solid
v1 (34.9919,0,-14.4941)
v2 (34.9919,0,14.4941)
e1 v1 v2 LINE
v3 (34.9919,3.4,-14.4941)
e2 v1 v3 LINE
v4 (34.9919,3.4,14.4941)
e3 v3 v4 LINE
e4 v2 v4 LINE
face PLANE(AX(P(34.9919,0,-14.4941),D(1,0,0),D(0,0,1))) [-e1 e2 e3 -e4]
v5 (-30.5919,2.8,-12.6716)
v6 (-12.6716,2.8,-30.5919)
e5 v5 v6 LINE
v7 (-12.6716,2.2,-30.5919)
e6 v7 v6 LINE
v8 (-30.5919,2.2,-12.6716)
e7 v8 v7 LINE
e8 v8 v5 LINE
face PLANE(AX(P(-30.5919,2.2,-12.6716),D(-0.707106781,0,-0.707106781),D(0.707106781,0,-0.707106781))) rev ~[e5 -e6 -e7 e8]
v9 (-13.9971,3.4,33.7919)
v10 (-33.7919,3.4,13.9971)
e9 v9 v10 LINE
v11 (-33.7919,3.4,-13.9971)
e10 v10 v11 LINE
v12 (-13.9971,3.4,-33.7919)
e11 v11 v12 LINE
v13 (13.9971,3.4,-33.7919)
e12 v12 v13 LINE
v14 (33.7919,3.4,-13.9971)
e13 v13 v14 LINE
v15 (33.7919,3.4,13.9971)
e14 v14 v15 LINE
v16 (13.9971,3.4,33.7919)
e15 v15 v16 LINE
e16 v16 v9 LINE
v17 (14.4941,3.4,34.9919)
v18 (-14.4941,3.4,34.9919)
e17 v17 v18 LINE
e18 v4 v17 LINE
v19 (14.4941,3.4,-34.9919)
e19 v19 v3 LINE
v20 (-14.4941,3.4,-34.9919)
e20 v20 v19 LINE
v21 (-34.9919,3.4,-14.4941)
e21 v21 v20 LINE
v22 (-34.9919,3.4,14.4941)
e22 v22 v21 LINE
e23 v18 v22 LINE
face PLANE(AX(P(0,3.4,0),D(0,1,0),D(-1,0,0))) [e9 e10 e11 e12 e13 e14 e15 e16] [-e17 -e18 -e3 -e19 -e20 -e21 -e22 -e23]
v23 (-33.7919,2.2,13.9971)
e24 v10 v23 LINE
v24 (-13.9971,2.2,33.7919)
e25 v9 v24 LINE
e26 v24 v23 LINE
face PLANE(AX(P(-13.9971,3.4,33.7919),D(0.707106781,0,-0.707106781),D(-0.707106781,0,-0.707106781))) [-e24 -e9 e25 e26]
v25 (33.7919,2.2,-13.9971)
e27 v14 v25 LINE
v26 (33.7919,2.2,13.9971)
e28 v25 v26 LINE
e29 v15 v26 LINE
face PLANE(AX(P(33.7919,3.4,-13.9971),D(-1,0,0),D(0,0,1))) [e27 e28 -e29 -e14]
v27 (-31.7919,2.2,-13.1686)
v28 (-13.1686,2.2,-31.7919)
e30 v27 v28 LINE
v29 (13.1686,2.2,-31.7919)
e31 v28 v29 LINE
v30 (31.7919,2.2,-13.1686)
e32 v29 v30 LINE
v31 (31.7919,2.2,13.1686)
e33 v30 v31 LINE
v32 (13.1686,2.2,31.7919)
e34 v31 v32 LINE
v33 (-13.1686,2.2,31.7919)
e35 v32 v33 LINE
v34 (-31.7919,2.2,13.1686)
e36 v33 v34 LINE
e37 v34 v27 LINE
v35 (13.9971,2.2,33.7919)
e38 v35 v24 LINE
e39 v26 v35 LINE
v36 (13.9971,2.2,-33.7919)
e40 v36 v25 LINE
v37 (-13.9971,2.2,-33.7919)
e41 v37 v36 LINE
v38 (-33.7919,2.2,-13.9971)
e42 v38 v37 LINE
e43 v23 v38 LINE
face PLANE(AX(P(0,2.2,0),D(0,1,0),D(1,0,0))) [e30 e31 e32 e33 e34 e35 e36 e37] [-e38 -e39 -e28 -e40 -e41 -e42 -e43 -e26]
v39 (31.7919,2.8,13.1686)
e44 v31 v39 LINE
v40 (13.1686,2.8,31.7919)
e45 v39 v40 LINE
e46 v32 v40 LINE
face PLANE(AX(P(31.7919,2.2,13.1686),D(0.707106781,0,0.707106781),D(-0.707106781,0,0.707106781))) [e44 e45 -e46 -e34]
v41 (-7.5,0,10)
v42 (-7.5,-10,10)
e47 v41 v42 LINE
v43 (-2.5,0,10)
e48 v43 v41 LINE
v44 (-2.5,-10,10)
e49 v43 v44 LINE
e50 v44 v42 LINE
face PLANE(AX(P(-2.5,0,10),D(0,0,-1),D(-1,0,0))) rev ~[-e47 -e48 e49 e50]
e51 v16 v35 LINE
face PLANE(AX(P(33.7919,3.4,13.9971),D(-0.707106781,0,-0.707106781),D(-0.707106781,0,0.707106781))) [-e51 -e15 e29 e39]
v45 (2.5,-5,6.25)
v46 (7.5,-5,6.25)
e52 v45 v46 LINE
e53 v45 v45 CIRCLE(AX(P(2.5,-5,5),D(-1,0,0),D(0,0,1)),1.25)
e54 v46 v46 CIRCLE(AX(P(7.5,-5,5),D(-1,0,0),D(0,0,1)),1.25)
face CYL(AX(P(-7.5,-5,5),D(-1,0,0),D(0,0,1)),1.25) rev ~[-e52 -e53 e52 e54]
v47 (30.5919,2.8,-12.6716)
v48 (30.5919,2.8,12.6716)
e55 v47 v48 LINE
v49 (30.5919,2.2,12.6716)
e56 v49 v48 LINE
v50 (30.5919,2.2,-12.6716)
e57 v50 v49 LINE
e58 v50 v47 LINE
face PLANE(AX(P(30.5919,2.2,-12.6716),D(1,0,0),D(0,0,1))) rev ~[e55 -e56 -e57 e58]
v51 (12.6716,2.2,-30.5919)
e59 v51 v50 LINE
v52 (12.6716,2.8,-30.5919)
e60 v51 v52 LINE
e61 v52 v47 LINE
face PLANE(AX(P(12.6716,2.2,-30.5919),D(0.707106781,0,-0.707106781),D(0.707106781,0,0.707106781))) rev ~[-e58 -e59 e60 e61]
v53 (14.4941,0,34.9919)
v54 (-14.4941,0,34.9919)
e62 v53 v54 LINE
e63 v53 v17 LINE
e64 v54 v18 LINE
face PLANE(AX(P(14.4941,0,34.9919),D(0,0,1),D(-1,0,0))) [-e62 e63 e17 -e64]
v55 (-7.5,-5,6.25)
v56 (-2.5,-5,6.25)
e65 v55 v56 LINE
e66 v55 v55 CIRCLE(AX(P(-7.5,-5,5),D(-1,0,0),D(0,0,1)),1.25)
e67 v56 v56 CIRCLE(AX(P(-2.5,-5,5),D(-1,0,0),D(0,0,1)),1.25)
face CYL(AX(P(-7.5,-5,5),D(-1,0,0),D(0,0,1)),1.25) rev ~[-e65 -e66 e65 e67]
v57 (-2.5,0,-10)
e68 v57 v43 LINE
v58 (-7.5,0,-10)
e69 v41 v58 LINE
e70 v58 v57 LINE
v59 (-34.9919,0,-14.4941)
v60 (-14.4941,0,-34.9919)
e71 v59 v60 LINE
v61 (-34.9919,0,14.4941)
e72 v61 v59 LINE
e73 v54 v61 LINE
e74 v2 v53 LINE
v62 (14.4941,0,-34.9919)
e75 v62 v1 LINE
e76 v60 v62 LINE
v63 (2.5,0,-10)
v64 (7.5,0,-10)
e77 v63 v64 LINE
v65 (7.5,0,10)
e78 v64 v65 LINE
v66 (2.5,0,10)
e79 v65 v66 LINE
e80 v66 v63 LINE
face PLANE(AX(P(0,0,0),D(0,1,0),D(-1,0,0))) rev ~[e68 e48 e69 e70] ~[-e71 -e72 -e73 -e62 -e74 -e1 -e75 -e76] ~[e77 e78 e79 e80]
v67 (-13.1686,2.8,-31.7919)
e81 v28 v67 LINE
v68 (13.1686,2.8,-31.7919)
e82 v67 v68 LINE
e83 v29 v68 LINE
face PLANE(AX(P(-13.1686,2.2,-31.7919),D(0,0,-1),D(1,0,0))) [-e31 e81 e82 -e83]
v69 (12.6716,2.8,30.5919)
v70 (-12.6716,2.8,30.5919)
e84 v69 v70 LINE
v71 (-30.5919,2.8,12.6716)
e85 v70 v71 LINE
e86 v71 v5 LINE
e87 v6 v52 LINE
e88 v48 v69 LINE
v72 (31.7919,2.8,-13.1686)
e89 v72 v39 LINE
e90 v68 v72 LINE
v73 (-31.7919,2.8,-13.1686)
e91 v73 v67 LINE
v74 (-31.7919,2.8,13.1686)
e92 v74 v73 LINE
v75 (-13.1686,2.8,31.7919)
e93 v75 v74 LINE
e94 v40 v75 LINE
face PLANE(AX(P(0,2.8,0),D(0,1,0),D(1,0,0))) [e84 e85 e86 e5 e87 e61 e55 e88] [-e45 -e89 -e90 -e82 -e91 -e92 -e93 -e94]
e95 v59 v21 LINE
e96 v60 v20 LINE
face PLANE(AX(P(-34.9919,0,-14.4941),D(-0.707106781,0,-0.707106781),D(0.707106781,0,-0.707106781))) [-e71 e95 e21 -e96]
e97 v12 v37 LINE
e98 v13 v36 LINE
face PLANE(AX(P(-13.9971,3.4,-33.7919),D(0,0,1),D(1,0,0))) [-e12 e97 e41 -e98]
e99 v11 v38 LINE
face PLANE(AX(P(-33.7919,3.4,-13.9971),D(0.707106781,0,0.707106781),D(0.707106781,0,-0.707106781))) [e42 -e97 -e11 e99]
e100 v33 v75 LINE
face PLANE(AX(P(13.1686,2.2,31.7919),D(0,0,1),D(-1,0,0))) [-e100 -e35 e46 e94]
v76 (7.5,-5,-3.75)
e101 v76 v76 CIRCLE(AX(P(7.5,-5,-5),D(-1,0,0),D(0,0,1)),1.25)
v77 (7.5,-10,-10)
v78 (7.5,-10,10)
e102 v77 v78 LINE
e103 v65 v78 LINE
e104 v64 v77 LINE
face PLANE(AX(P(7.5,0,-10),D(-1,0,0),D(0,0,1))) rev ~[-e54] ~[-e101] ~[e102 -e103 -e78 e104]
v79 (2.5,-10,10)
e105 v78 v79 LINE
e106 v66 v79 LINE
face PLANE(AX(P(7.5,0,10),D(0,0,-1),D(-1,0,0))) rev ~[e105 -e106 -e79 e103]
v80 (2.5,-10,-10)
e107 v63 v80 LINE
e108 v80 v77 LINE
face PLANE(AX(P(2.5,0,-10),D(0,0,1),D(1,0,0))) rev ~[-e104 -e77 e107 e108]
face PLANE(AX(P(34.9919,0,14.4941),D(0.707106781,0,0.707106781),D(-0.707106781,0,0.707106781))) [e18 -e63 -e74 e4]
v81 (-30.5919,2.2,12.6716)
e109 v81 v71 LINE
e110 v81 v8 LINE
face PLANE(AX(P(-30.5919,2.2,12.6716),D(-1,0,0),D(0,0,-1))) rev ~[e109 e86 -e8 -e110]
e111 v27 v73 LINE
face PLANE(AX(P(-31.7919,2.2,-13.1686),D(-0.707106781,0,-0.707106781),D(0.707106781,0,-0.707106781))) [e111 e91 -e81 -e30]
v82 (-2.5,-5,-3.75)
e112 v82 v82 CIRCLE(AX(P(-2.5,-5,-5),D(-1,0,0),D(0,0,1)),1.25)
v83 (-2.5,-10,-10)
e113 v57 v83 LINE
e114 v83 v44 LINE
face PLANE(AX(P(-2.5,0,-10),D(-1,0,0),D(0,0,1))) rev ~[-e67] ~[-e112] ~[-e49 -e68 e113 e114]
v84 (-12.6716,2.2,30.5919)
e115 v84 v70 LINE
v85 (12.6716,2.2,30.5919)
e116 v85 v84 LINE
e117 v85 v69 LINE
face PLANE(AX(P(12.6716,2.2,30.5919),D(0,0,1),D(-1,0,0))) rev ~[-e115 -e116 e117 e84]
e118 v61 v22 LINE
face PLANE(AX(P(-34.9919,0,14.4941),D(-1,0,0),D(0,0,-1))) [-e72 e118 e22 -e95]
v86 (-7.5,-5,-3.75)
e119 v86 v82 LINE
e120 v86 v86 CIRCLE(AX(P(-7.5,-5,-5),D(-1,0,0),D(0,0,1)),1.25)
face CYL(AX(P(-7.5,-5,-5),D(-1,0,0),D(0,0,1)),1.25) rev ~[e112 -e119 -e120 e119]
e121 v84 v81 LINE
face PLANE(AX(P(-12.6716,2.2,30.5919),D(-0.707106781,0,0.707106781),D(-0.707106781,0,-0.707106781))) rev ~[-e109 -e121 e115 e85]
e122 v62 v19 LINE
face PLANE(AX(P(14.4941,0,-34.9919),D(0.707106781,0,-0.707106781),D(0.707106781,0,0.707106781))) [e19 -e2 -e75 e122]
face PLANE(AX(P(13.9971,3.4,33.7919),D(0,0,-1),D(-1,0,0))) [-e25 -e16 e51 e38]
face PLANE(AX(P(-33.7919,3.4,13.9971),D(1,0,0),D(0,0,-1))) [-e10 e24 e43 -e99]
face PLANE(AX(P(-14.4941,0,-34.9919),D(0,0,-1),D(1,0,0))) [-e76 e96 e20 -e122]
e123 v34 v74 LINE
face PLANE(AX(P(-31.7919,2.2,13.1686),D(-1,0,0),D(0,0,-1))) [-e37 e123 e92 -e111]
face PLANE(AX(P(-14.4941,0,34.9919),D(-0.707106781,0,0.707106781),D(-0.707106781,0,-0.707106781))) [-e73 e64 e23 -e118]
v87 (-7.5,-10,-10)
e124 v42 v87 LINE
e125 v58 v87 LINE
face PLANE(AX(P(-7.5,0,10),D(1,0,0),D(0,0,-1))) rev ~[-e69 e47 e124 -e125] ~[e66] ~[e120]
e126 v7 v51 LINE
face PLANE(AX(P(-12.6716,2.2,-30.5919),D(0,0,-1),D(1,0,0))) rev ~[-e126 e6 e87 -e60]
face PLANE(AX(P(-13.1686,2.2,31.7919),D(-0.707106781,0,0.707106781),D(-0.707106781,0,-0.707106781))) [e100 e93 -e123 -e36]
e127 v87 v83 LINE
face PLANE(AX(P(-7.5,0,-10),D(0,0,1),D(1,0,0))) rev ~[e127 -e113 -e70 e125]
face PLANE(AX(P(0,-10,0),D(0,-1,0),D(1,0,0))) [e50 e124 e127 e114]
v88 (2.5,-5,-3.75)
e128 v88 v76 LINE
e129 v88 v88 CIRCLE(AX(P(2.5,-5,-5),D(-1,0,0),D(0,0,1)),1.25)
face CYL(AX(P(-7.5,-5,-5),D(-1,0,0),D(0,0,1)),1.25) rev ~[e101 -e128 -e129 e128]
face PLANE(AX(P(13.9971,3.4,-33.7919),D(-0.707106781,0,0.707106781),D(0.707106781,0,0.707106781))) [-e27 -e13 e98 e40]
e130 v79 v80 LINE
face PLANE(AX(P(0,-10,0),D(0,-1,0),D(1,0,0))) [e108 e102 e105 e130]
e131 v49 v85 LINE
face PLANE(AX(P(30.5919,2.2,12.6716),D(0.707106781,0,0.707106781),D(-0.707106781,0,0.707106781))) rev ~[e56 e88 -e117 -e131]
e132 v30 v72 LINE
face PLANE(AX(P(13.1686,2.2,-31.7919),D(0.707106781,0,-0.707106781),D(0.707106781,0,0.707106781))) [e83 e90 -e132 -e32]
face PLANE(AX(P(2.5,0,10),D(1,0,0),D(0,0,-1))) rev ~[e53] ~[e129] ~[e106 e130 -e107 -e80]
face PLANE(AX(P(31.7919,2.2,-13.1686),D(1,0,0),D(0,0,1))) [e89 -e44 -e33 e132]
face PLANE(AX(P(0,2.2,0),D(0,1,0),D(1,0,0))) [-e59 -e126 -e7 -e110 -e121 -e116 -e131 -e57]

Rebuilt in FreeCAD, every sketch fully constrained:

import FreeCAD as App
import Part
import Sketcher
Q = App.Units.Quantity


def add_polygon(sketch, points):
    """Adds a closed chain of lines whose ends are joined by coincident constraints."""
    first, n = sketch.GeometryCount, len(points)
    for a, b in zip(points, points[1:] + points[:1]):
        sketch.addGeometry(Part.LineSegment(App.Vector(*a, 0), App.Vector(*b, 0)), False)
    for i in range(n):
        sketch.addConstraint(Sketcher.Constraint("Coincident", first + i, 2, first + (i + 1) % n, 1))

doc = App.newDocument("Part")
body = doc.addObject("PartDesign::Body", "Body")

sketch1 = body.newObject("Sketcher::SketchObject", "Sketch")
sketch1.AttachmentSupport = (doc.getObject("XZ_Plane"), [""])
sketch1.MapMode = "FlatFace"
add_polygon(sketch1, [(-14.4941, -34.9919), (-34.9919, -14.4941), (-34.9919, 14.4941), (-14.4941, 34.9919), (14.4941, 34.9919), (34.9919, 14.4941), (34.9919, -14.4941), (14.4941, -34.9919)])
sketch1.addConstraint(Sketcher.Constraint("Vertical", 1))
sketch1.addConstraint(Sketcher.Constraint("Horizontal", 3))
sketch1.addConstraint(Sketcher.Constraint("Vertical", 5))
sketch1.addConstraint(Sketcher.Constraint("Horizontal", 7))
sketch1.addConstraint(Sketcher.Constraint("Symmetric", 0, 2, 4, 2, -1, 1))
sketch1.addConstraint(Sketcher.Constraint("Symmetric", 2, 2, 6, 2, -1, 1))
sketch1.addConstraint(Sketcher.Constraint("Perpendicular", 0, 2))
sketch1.addConstraint(Sketcher.Constraint("Perpendicular", 2, 4))
sketch1.addConstraint(Sketcher.Constraint("Perpendicular", 4, 6))
sketch1.addConstraint(Sketcher.Constraint("Horizontal", 1, 2, 4, 2))
sketch1.addConstraint(Sketcher.Constraint("Vertical", 3, 2, 6, 2))
sketch1.addConstraint(Sketcher.Constraint("Equal", 7, 1))
sketch1.addConstraint(Sketcher.Constraint("DistanceX", 3, 1, 3, 2, Q("28.9882 mm")))
sketch1.addConstraint(Sketcher.Constraint("DistanceX", 0, 2, -1, 1, Q("34.992 mm")))
pad1 = body.newObject("PartDesign::Pad", "Pad")
pad1.Profile = sketch1
pad1.Length = 3.4
pad1.Reversed = True

sketch2 = body.newObject("Sketcher::SketchObject", "Sketch001")
sketch2.AttachmentSupport = (doc.getObject("XZ_Plane"), [""])
sketch2.MapMode = "FlatFace"
sketch2.AttachmentOffset = App.Placement(App.Vector(0, 0, -3.4), App.Rotation())
add_polygon(sketch2, [(13.9971, -33.7919), (-13.9971, -33.7919), (-33.7919, -13.9971), (-33.7919, 13.9971), (-13.9971, 33.7919), (13.9971, 33.7919), (33.7919, 13.9971), (33.7919, -13.9971)])
sketch2.addConstraint(Sketcher.Constraint("Horizontal", 0))
sketch2.addConstraint(Sketcher.Constraint("Vertical", 2))
sketch2.addConstraint(Sketcher.Constraint("Horizontal", 4))
sketch2.addConstraint(Sketcher.Constraint("Vertical", 6))
sketch2.addConstraint(Sketcher.Constraint("Symmetric", 0, 2, 4, 2, -1, 1))
sketch2.addConstraint(Sketcher.Constraint("Symmetric", 1, 2, 5, 2, -1, 1))
sketch2.addConstraint(Sketcher.Constraint("Perpendicular", 1, 3))
sketch2.addConstraint(Sketcher.Constraint("Perpendicular", 5, 7))
sketch2.addConstraint(Sketcher.Constraint("Horizontal", 2, 2, 5, 2))
sketch2.addConstraint(Sketcher.Constraint("Horizontal", 1, 2, 6, 2))
sketch2.addConstraint(Sketcher.Constraint("Vertical", 0, 2, 3, 2))
sketch2.addConstraint(Sketcher.Constraint("Equal", 4, 2))
sketch2.addConstraint(Sketcher.Constraint("Distance", 1, Q("27.994 mm")))
sketch2.addConstraint(Sketcher.Constraint("DistanceX", 0, 2, 0, 1, Q("27.9942 mm")))
pocket1 = body.newObject("PartDesign::Pocket", "Pocket")
pocket1.Profile = sketch2
pocket1.Length = 1.2
pocket1.Reversed = True

sketch3 = body.newObject("Sketcher::SketchObject", "Sketch002")
sketch3.AttachmentSupport = (doc.getObject("XZ_Plane"), [""])
sketch3.MapMode = "FlatFace"
add_polygon(sketch3, [(7.5, -10), (7.5, 10), (2.5, 10), (2.5, -10)])
add_polygon(sketch3, [(-2.5, -10), (-2.5, 10), (-7.5, 10), (-7.5, -10)])
sketch3.addConstraint(Sketcher.Constraint("Vertical", 0))
sketch3.addConstraint(Sketcher.Constraint("Horizontal", 1))
sketch3.addConstraint(Sketcher.Constraint("Vertical", 2))
sketch3.addConstraint(Sketcher.Constraint("Horizontal", 3))
sketch3.addConstraint(Sketcher.Constraint("Vertical", 4))
sketch3.addConstraint(Sketcher.Constraint("Horizontal", 5))
sketch3.addConstraint(Sketcher.Constraint("Vertical", 6))
sketch3.addConstraint(Sketcher.Constraint("Horizontal", 7))
sketch3.addConstraint(Sketcher.Constraint("Symmetric", 2, 2, 4, 2, -1, 1))
sketch3.addConstraint(Sketcher.Constraint("Symmetric", 0, 2, 6, 2, -1, 1))
sketch3.addConstraint(Sketcher.Constraint("Horizontal", 1, 2, 4, 2))
sketch3.addConstraint(Sketcher.Constraint("DistanceX", 1, 2, 1, 1, Q("5 mm")))
sketch3.addConstraint(Sketcher.Constraint("DistanceY", 0, 1, 0, 2, Q("20 mm")))
sketch3.addConstraint(Sketcher.Constraint("DistanceX", 4, 2, 1, 2, Q("5 mm")))
pad2 = body.newObject("PartDesign::Pad", "Pad001")
pad2.Profile = sketch3
pad2.Length = 10

sketch4 = body.newObject("Sketcher::SketchObject", "Sketch003")
sketch4.AttachmentSupport = (doc.getObject("YZ_Plane"), [""])
sketch4.MapMode = "FlatFace"
sketch4.AttachmentOffset = App.Placement(App.Vector(0, 0, -7.5), App.Rotation())
sketch4.addGeometry(Part.Circle(App.Vector(-5, 5, 0), App.Vector(0, 0, 1), 1.25), False)
sketch4.addGeometry(Part.Circle(App.Vector(-5, -5, 0), App.Vector(0, 0, 1), 1.25), False)
sketch4.addConstraint(Sketcher.Constraint("Equal", 0, 1))
sketch4.addConstraint(Sketcher.Constraint("Symmetric", 0, 3, 1, 3, -1))
sketch4.addConstraint(Sketcher.Constraint("Diameter", 0, Q("2.5 mm")))
sketch4.addConstraint(Sketcher.Constraint("DistanceX", 0, 3, -1, 1, Q("5 mm")))
sketch4.addConstraint(Sketcher.Constraint("DistanceY", -1, 1, 0, 3, Q("5 mm")))
pocket2 = body.newObject("PartDesign::Pocket", "Pocket001")
pocket2.Profile = sketch4
pocket2.Length = 20
pocket2.Reversed = True

sketch5 = body.newObject("Sketcher::SketchObject", "Sketch004")
sketch5.AttachmentSupport = (doc.getObject("XZ_Plane"), [""])
sketch5.MapMode = "FlatFace"
sketch5.AttachmentOffset = App.Placement(App.Vector(0, 0, -2.2), App.Rotation())
add_polygon(sketch5, [(13.1686, -31.7919), (-13.1686, -31.7919), (-31.7919, -13.1686), (-31.7919, 13.1686), (-13.1686, 31.7919), (13.1686, 31.7919), (31.7919, 13.1686), (31.7919, -13.1686)])
add_polygon(sketch5, [(-30.5919, -12.6716), (-12.6716, -30.5919), (12.6716, -30.5919), (30.5919, -12.6716), (30.5919, 12.6716), (12.6716, 30.5919), (-12.6716, 30.5919), (-30.5919, 12.6716)])
sketch5.addConstraint(Sketcher.Constraint("Horizontal", 0))
sketch5.addConstraint(Sketcher.Constraint("Vertical", 2))
sketch5.addConstraint(Sketcher.Constraint("Horizontal", 4))
sketch5.addConstraint(Sketcher.Constraint("Vertical", 6))
sketch5.addConstraint(Sketcher.Constraint("Horizontal", 9))
sketch5.addConstraint(Sketcher.Constraint("Vertical", 11))
sketch5.addConstraint(Sketcher.Constraint("Horizontal", 13))
sketch5.addConstraint(Sketcher.Constraint("Vertical", 15))
sketch5.addConstraint(Sketcher.Constraint("Symmetric", 0, 2, 4, 2, -1, 1))
sketch5.addConstraint(Sketcher.Constraint("Symmetric", 1, 2, 5, 2, -1, 1))
sketch5.addConstraint(Sketcher.Constraint("Symmetric", 8, 2, 12, 2, -1, 1))
sketch5.addConstraint(Sketcher.Constraint("Symmetric", 10, 2, 14, 2, -1, 1))
sketch5.addConstraint(Sketcher.Constraint("Perpendicular", 1, 3))
sketch5.addConstraint(Sketcher.Constraint("Perpendicular", 5, 7))
sketch5.addConstraint(Sketcher.Constraint("Perpendicular", 7, 8))
sketch5.addConstraint(Sketcher.Constraint("Perpendicular", 8, 10))
sketch5.addConstraint(Sketcher.Constraint("Perpendicular", 10, 12))
sketch5.addConstraint(Sketcher.Constraint("Perpendicular", 12, 14))
sketch5.addConstraint(Sketcher.Constraint("Horizontal", 2, 2, 5, 2))
sketch5.addConstraint(Sketcher.Constraint("Horizontal", 1, 2, 6, 2))
sketch5.addConstraint(Sketcher.Constraint("Horizontal", 11, 2, 14, 2))
sketch5.addConstraint(Sketcher.Constraint("Vertical", 0, 2, 3, 2))
sketch5.addConstraint(Sketcher.Constraint("Equal", 4, 2))
sketch5.addConstraint(Sketcher.Constraint("Equal", 13, 11))
sketch5.addConstraint(Sketcher.Constraint("DistanceY", 0, 2, 8, 2, Q("1.2 mm")))
sketch5.addConstraint(Sketcher.Constraint("DistanceX", 0, 2, 0, 1, Q("26.3372 mm")))
sketch5.addConstraint(Sketcher.Constraint("DistanceX", 9, 1, 9, 2, Q("25.3432 mm")))
sketch5.addConstraint(Sketcher.Constraint("DistanceY", 0, 2, -1, 1, Q("31.792 mm")))
pad3 = body.newObject("PartDesign::Pad", "Pad002")
pad3.Profile = sketch5
pad3.Length = 0.6
pad3.Reversed = True

doc.recompute()
